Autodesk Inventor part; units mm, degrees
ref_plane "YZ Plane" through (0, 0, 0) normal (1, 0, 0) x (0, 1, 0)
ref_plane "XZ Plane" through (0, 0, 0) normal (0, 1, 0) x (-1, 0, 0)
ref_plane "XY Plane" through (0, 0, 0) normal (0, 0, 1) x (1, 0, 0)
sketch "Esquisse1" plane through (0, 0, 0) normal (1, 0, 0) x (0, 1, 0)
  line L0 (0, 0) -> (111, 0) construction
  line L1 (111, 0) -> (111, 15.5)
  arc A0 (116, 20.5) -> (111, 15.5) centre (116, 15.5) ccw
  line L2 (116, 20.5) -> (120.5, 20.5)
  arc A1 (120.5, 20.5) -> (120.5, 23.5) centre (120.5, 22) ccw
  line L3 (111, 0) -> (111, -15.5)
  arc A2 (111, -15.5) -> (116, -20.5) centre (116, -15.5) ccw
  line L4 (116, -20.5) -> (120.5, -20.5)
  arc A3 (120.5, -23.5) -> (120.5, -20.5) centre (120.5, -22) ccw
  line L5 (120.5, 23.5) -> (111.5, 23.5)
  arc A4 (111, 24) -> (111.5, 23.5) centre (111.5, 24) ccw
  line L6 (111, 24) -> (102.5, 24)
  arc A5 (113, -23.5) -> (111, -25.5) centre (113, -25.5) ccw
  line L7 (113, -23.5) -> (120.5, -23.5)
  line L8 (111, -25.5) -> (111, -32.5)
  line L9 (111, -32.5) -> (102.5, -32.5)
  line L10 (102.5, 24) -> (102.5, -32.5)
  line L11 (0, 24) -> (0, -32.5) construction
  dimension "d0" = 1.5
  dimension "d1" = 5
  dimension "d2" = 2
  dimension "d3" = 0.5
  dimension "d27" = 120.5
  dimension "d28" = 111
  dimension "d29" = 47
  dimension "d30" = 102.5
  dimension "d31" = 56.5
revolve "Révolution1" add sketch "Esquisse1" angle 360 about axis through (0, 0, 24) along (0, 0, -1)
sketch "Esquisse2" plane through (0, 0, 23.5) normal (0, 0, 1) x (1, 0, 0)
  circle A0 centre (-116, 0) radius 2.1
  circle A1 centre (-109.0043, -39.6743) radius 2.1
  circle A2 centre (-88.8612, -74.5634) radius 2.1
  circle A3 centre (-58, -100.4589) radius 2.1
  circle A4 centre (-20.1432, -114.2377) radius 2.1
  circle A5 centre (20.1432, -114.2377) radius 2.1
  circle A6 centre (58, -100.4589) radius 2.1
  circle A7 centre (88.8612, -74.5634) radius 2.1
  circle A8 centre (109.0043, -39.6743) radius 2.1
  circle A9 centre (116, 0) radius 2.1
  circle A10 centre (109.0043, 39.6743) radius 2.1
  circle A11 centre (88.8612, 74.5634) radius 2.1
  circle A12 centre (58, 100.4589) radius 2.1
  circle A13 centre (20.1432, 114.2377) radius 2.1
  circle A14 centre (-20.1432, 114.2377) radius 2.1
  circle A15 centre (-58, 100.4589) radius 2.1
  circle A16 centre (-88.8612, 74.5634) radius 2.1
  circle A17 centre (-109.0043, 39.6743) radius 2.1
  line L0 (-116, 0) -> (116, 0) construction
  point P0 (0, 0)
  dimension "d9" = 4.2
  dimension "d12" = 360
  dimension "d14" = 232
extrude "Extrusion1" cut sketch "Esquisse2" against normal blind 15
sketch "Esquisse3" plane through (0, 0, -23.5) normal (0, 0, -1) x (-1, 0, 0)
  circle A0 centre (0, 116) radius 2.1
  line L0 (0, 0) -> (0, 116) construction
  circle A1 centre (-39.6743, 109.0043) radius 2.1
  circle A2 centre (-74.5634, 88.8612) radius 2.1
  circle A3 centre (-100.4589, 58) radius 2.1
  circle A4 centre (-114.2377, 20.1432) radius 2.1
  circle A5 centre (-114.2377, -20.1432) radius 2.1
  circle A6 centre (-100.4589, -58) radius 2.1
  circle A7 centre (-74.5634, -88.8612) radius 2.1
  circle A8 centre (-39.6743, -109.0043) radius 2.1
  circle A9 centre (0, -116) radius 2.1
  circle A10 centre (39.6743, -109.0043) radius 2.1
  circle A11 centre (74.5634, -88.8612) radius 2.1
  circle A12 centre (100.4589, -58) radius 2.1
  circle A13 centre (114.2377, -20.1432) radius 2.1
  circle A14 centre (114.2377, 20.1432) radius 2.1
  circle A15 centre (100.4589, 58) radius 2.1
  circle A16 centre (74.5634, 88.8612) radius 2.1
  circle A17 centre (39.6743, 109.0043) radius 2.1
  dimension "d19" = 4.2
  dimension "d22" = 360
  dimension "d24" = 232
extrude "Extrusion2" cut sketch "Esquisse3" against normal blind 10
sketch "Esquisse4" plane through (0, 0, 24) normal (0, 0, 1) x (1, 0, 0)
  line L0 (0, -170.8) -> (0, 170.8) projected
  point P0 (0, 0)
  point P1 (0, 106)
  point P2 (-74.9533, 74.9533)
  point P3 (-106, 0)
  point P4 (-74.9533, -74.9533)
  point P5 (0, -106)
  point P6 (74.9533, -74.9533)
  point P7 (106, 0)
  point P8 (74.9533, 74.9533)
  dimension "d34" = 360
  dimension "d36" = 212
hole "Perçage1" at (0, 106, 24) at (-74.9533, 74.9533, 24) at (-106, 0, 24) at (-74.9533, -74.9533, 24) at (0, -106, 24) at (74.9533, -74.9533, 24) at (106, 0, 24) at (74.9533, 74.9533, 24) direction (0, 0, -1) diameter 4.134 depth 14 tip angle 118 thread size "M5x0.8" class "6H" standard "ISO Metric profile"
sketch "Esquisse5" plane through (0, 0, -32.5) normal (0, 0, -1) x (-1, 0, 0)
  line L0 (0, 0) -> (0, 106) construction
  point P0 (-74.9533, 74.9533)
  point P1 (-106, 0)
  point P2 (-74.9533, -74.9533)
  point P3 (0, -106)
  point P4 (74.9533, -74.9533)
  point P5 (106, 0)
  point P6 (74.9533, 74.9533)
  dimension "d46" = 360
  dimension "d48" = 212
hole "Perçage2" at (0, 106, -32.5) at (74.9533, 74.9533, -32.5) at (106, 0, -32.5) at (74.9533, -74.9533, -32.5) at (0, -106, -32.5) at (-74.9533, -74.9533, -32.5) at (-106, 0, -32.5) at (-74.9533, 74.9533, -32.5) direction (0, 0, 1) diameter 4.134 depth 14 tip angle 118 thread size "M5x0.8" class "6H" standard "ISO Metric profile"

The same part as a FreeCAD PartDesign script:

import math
import FreeCAD as App
import Part
import Sketcher
Q = App.Units.Quantity

doc = App.newDocument("Part")
body = doc.addObject("PartDesign::Body", "Body")

sketch1 = doc.addObject("Sketcher::SketchObject", "Sketch")
body.addObject(sketch1)
sketch1.AttachmentSupport = (doc.YZ_Plane, [""])
sketch1.MapMode = "FlatFace"
sketch1.addGeometry([
    Part.LineSegment(App.Vector(111, -15.5, 0), App.Vector(111, 15.5, 0)),
    Part.ArcOfCircle(Part.Circle(App.Vector(116, 15.5, 0), App.Vector(0, 0, 1), 5), math.radians(90), math.radians(180)),
    Part.LineSegment(App.Vector(116, 20.5, 0), App.Vector(120.5, 20.5, 0)),
    Part.ArcOfCircle(Part.Circle(App.Vector(120.5, 22, 0), App.Vector(0, 0, 1), 1.5), math.radians(-90), math.radians(90)),
    Part.LineSegment(App.Vector(120.5, 23.5, 0), App.Vector(111.5, 23.5, 0)),
    Part.ArcOfCircle(Part.Circle(App.Vector(111.5, 24, 0), App.Vector(0, 0, 1), 0.5), math.radians(180), math.radians(270)),
    Part.LineSegment(App.Vector(111, 24, 0), App.Vector(102.5, 24, 0)),
    Part.LineSegment(App.Vector(102.5, 24, 0), App.Vector(102.5, -32.5, 0)),
    Part.LineSegment(App.Vector(102.5, -32.5, 0), App.Vector(111, -32.5, 0)),
    Part.LineSegment(App.Vector(111, -32.5, 0), App.Vector(111, -25.5, 0)),
    Part.ArcOfCircle(Part.Circle(App.Vector(113, -25.5, 0), App.Vector(0, 0, 1), 2), math.radians(90), math.radians(180)),
    Part.LineSegment(App.Vector(113, -23.5, 0), App.Vector(120.5, -23.5, 0)),
    Part.ArcOfCircle(Part.Circle(App.Vector(120.5, -22, 0), App.Vector(0, 0, 1), 1.5), math.radians(-90), math.radians(90)),
    Part.LineSegment(App.Vector(120.5, -20.5, 0), App.Vector(116, -20.5, 0)),
    Part.ArcOfCircle(Part.Circle(App.Vector(116, -15.5, 0), App.Vector(0, 0, 1), 5), math.radians(180), math.radians(270)),
], False)
sketch1.addConstraint([
    Sketcher.Constraint("Tangent", 0, 2, 1, 2),
    Sketcher.Constraint("Tangent", 1, 1, 2, 1),
    Sketcher.Constraint("Tangent", 2, 2, 3, 1),
    Sketcher.Constraint("Tangent", 3, 2, 4, 1),
    Sketcher.Constraint("Tangent", 4, 2, 5, 2),
    Sketcher.Constraint("Coincident", 5, 1, 6, 1),
    Sketcher.Constraint("Coincident", 6, 2, 7, 1),
    Sketcher.Constraint("Coincident", 7, 2, 8, 1),
    Sketcher.Constraint("Coincident", 8, 2, 9, 1),
    Sketcher.Constraint("Tangent", 9, 2, 10, 2),
    Sketcher.Constraint("Tangent", 10, 1, 11, 1),
    Sketcher.Constraint("Tangent", 11, 2, 12, 1),
    Sketcher.Constraint("Tangent", 12, 2, 13, 1),
    Sketcher.Constraint("Tangent", 13, 2, 14, 2),
    Sketcher.Constraint("Tangent", 14, 1, 0, 1),
    Sketcher.Constraint("Vertical", 0),
    Sketcher.Constraint("Horizontal", 2),
    Sketcher.Constraint("Horizontal", 4),
    Sketcher.Constraint("Horizontal", 6),
    Sketcher.Constraint("Vertical", 7),
    Sketcher.Constraint("Horizontal", 8),
    Sketcher.Constraint("Vertical", 9),
    Sketcher.Constraint("Horizontal", 11),
    Sketcher.Constraint("Horizontal", 13),
    Sketcher.Constraint("Equal", 3, 12),
    Sketcher.Constraint("Equal", 1, 14),
    Sketcher.Constraint("Symmetric", 3, 3, 12, 3, -1),
    Sketcher.Constraint("Vertical", 0, 2, 5, 1),
    Sketcher.Constraint("Vertical", 5, 1, 8, 2),
    Sketcher.Constraint("Radius", 1, Q("5 mm")),
    Sketcher.Constraint("Radius", 10, Q("2 mm")),
    Sketcher.Constraint("Radius", 3, Q("1.5 mm")),
    Sketcher.Constraint("Radius", 5, Q("0.5 mm")),
    Sketcher.Constraint("DistanceY", 7, 2, 7, 1, Q("56.5 mm")),
    Sketcher.Constraint("DistanceX", -1, 1, 0, 2, Q("111 mm")),
    Sketcher.Constraint("DistanceX", -1, 1, 3, 3, Q("120.5 mm")),
    Sketcher.Constraint("DistanceX", -1, 1, 6, 2, Q("102.5 mm")),
    Sketcher.Constraint("DistanceY", 4, 2, 5, 1, Q("0.5 mm")),
    Sketcher.Constraint("DistanceY", 0, 1, 0, 2, Q("31 mm")),
])
revolution = doc.addObject("PartDesign::Revolution", "Revolution")
body.addObject(revolution)
revolution.Profile = sketch1
revolution.ReferenceAxis = (sketch1, ["V_Axis"])
revolution.Angle = 360

sketch2 = doc.addObject("Sketcher::SketchObject", "Sketch001")
body.addObject(sketch2)
sketch2.AttachmentSupport = (doc.XY_Plane, [""])
sketch2.MapMode = "FlatFace"
sketch2.AttachmentOffset = App.Placement(App.Vector(0, 0, 23.5), App.Rotation())
sketch2.addGeometry([
    Part.Circle(App.Vector(-116, 0, 0), App.Vector(0, 0, 1), 2.1),
    Part.Circle(App.Vector(-109.0043, -39.6743, 0), App.Vector(0, 0, 1), 2.1),
    Part.Circle(App.Vector(-88.8612, -74.5634, 0), App.Vector(0, 0, 1), 2.1),
    Part.Circle(App.Vector(-58, -100.4589, 0), App.Vector(0, 0, 1), 2.1),
    Part.Circle(App.Vector(-20.1432, -114.2377, 0), App.Vector(0, 0, 1), 2.1),
    Part.Circle(App.Vector(20.1432, -114.2377, 0), App.Vector(0, 0, 1), 2.1),
    Part.Circle(App.Vector(58, -100.4589, 0), App.Vector(0, 0, 1), 2.1),
    Part.Circle(App.Vector(88.8612, -74.5634, 0), App.Vector(0, 0, 1), 2.1),
    Part.Circle(App.Vector(109.0043, -39.6743, 0), App.Vector(0, 0, 1), 2.1),
    Part.Circle(App.Vector(116, 0, 0), App.Vector(0, 0, 1), 2.1),
    Part.Circle(App.Vector(109.0043, 39.6743, 0), App.Vector(0, 0, 1), 2.1),
    Part.Circle(App.Vector(88.8612, 74.5634, 0), App.Vector(0, 0, 1), 2.1),
    Part.Circle(App.Vector(58, 100.4589, 0), App.Vector(0, 0, 1), 2.1),
    Part.Circle(App.Vector(20.1432, 114.2377, 0), App.Vector(0, 0, 1), 2.1),
    Part.Circle(App.Vector(-20.1432, 114.2377, 0), App.Vector(0, 0, 1), 2.1),
    Part.Circle(App.Vector(-58, 100.4589, 0), App.Vector(0, 0, 1), 2.1),
    Part.Circle(App.Vector(-88.8612, 74.5634, 0), App.Vector(0, 0, 1), 2.1),
    Part.Circle(App.Vector(-109.0043, 39.6743, 0), App.Vector(0, 0, 1), 2.1),
], False)
sketch2.addConstraint([
    Sketcher.Constraint("Equal", 0, 1),
    Sketcher.Constraint("Equal", 1, 2),
    Sketcher.Constraint("Equal", 2, 3),
    Sketcher.Constraint("Equal", 3, 4),
    Sketcher.Constraint("Equal", 4, 5),
    Sketcher.Constraint("Equal", 5, 6),
    Sketcher.Constraint("Equal", 6, 7),
    Sketcher.Constraint("Equal", 7, 8),
    Sketcher.Constraint("Equal", 8, 9),
    Sketcher.Constraint("Equal", 9, 10),
    Sketcher.Constraint("Equal", 10, 11),
    Sketcher.Constraint("Equal", 11, 12),
    Sketcher.Constraint("Equal", 12, 13),
    Sketcher.Constraint("Equal", 13, 14),
    Sketcher.Constraint("Equal", 14, 15),
    Sketcher.Constraint("Equal", 15, 16),
    Sketcher.Constraint("Equal", 16, 17),
    Sketcher.Constraint("Symmetric", 0, 3, 9, 3, -1, 1),
    Sketcher.Constraint("Symmetric", 1, 3, 10, 3, -1, 1),
    Sketcher.Constraint("Symmetric", 2, 3, 11, 3, -1, 1),
    Sketcher.Constraint("Symmetric", 3, 3, 12, 3, -1, 1),
    Sketcher.Constraint("Symmetric", 4, 3, 13, 3, -1, 1),
    Sketcher.Constraint("Symmetric", 5, 3, 14, 3, -1, 1),
    Sketcher.Constraint("Symmetric", 6, 3, 15, 3, -1, 1),
    Sketcher.Constraint("Symmetric", 7, 3, 16, 3, -1, 1),
    Sketcher.Constraint("Symmetric", 8, 3, 17, 3, -1, 1),
    Sketcher.Constraint("Symmetric", 4, 3, 5, 3, -2),
    Sketcher.Constraint("Symmetric", 3, 3, 6, 3, -2),
    Sketcher.Constraint("Symmetric", 2, 3, 7, 3, -2),
    Sketcher.Constraint("Symmetric", 1, 3, 8, 3, -2),
    Sketcher.Constraint("PointOnObject", 0, 3, -1),
    Sketcher.Constraint("Diameter", 0, Q("4.2 mm")),
    Sketcher.Constraint("DistanceX", 0, 3, -1, 1, Q("116 mm")),
    Sketcher.Constraint("DistanceX", 3, 3, -1, 1, Q("58 mm")),
    Sketcher.Constraint("DistanceY", 3, 3, -1, 1, Q("100.459 mm")),
    Sketcher.Constraint("DistanceX", 1, 3, 2, 3, Q("20.143 mm")),
    Sketcher.Constraint("DistanceY", 2, 3, 1, 3, Q("34.889 mm")),
    Sketcher.Constraint("DistanceX", 2, 3, 4, 3, Q("68.718 mm")),
    Sketcher.Constraint("DistanceY", 5, 3, 10, 3, Q("153.912 mm")),
    Sketcher.Constraint("DistanceX", 1, 3, -1, 1, Q("109.0043 mm")),
    Sketcher.Constraint("DistanceY", 1, 3, -1, 1, Q("39.6743 mm")),
])
pocket1 = doc.addObject("PartDesign::Pocket", "Pocket")
body.addObject(pocket1)
pocket1.Profile = sketch2
pocket1.Length = 15

sketch3 = doc.addObject("Sketcher::SketchObject", "Sketch002")
body.addObject(sketch3)
sketch3.AttachmentSupport = (doc.XY_Plane, [""])
sketch3.MapMode = "FlatFace"
sketch3.AttachmentOffset = App.Placement(App.Vector(0, 0, -23.5), App.Rotation())
sketch3.addGeometry([
    Part.Circle(App.Vector(0, 116, 0), App.Vector(0, 0, 1), 2.1),
    Part.Circle(App.Vector(39.6743, 109.0043, 0), App.Vector(0, 0, 1), 2.1),
    Part.Circle(App.Vector(74.5634, 88.8612, 0), App.Vector(0, 0, 1), 2.1),
    Part.Circle(App.Vector(100.4589, 58, 0), App.Vector(0, 0, 1), 2.1),
    Part.Circle(App.Vector(114.2377, 20.1432, 0), App.Vector(0, 0, 1), 2.1),
    Part.Circle(App.Vector(114.2377, -20.1432, 0), App.Vector(0, 0, 1), 2.1),
    Part.Circle(App.Vector(100.4589, -58, 0), App.Vector(0, 0, 1), 2.1),
    Part.Circle(App.Vector(74.5634, -88.8612, 0), App.Vector(0, 0, 1), 2.1),
    Part.Circle(App.Vector(39.6743, -109.0043, 0), App.Vector(0, 0, 1), 2.1),
    Part.Circle(App.Vector(0, -116, 0), App.Vector(0, 0, 1), 2.1),
    Part.Circle(App.Vector(-39.6743, -109.0043, 0), App.Vector(0, 0, 1), 2.1),
    Part.Circle(App.Vector(-74.5634, -88.8612, 0), App.Vector(0, 0, 1), 2.1),
    Part.Circle(App.Vector(-100.4589, -58, 0), App.Vector(0, 0, 1), 2.1),
    Part.Circle(App.Vector(-114.2377, -20.1432, 0), App.Vector(0, 0, 1), 2.1),
    Part.Circle(App.Vector(-114.2377, 20.1432, 0), App.Vector(0, 0, 1), 2.1),
    Part.Circle(App.Vector(-100.4589, 58, 0), App.Vector(0, 0, 1), 2.1),
    Part.Circle(App.Vector(-74.5634, 88.8612, 0), App.Vector(0, 0, 1), 2.1),
    Part.Circle(App.Vector(-39.6743, 109.0043, 0), App.Vector(0, 0, 1), 2.1),
], False)
sketch3.addConstraint([
    Sketcher.Constraint("Equal", 0, 1),
    Sketcher.Constraint("Equal", 1, 2),
    Sketcher.Constraint("Equal", 2, 3),
    Sketcher.Constraint("Equal", 3, 4),
    Sketcher.Constraint("Equal", 4, 5),
    Sketcher.Constraint("Equal", 5, 6),
    Sketcher.Constraint("Equal", 6, 7),
    Sketcher.Constraint("Equal", 7, 8),
    Sketcher.Constraint("Equal", 8, 9),
    Sketcher.Constraint("Equal", 9, 10),
    Sketcher.Constraint("Equal", 10, 11),
    Sketcher.Constraint("Equal", 11, 12),
    Sketcher.Constraint("Equal", 12, 13),
    Sketcher.Constraint("Equal", 13, 14),
    Sketcher.Constraint("Equal", 14, 15),
    Sketcher.Constraint("Equal", 15, 16),
    Sketcher.Constraint("Equal", 16, 17),
    Sketcher.Constraint("Symmetric", 0, 3, 9, 3, -1, 1),
    Sketcher.Constraint("Symmetric", 1, 3, 10, 3, -1, 1),
    Sketcher.Constraint("Symmetric", 2, 3, 11, 3, -1, 1),
    Sketcher.Constraint("Symmetric", 3, 3, 12, 3, -1, 1),
    Sketcher.Constraint("Symmetric", 4, 3, 13, 3, -1, 1),
    Sketcher.Constraint("Symmetric", 5, 3, 14, 3, -1, 1),
    Sketcher.Constraint("Symmetric", 6, 3, 15, 3, -1, 1),
    Sketcher.Constraint("Symmetric", 7, 3, 16, 3, -1, 1),
    Sketcher.Constraint("Symmetric", 8, 3, 17, 3, -1, 1),
    Sketcher.Constraint("Symmetric", 8, 3, 10, 3, -2),
    Sketcher.Constraint("Symmetric", 7, 3, 11, 3, -2),
    Sketcher.Constraint("Symmetric", 6, 3, 12, 3, -2),
    Sketcher.Constraint("Symmetric", 5, 3, 13, 3, -2),
    Sketcher.Constraint("PointOnObject", 0, 3, -2),
    Sketcher.Constraint("Diameter", 0, Q("4.2 mm")),
    Sketcher.Constraint("DistanceY", -1, 1, 0, 3, Q("116 mm")),
    Sketcher.Constraint("DistanceY", -1, 1, 3, 3, Q("58 mm")),
    Sketcher.Constraint("DistanceX", -1, 1, 3, 3, Q("100.459 mm")),
    Sketcher.Constraint("DistanceX", 1, 3, 2, 3, Q("34.889 mm")),
    Sketcher.Constraint("DistanceY", 2, 3, 1, 3, Q("20.143 mm")),
    Sketcher.Constraint("DistanceY", 4, 3, 2, 3, Q("68.718 mm")),
    Sketcher.Constraint("DistanceX", 10, 3, 5, 3, Q("153.912 mm")),
    Sketcher.Constraint("DistanceX", -1, 1, 1, 3, Q("39.6743 mm")),
    Sketcher.Constraint("DistanceY", -1, 1, 1, 3, Q("109.0043 mm")),
])
pocket2 = doc.addObject("PartDesign::Pocket", "Pocket001")
body.addObject(pocket2)
pocket2.Profile = sketch3
pocket2.Length = 10
pocket2.Reversed = True

sketch4 = doc.addObject("Sketcher::SketchObject", "Sketch003")
body.addObject(sketch4)
sketch4.AttachmentSupport = (doc.XY_Plane, [""])
sketch4.MapMode = "FlatFace"
sketch4.AttachmentOffset = App.Placement(App.Vector(0, 0, 24), App.Rotation())
sketch4.addGeometry([
    Part.Circle(App.Vector(0, 106, 0), App.Vector(0, 0, 1), 2.067),
    Part.Circle(App.Vector(-74.9533, 74.9533, 0), App.Vector(0, 0, 1), 2.067),
    Part.Circle(App.Vector(-106, 0, 0), App.Vector(0, 0, 1), 2.067),
    Part.Circle(App.Vector(-74.9533, -74.9533, 0), App.Vector(0, 0, 1), 2.067),
    Part.Circle(App.Vector(0, -106, 0), App.Vector(0, 0, 1), 2.067),
    Part.Circle(App.Vector(74.9533, -74.9533, 0), App.Vector(0, 0, 1), 2.067),
    Part.Circle(App.Vector(106, 0, 0), App.Vector(0, 0, 1), 2.067),
    Part.Circle(App.Vector(74.9533, 74.9533, 0), App.Vector(0, 0, 1), 2.067),
], False)
sketch4.addConstraint([
    Sketcher.Constraint("Equal", 0, 1),
    Sketcher.Constraint("Equal", 1, 2),
    Sketcher.Constraint("Equal", 2, 3),
    Sketcher.Constraint("Equal", 3, 4),
    Sketcher.Constraint("Equal", 4, 5),
    Sketcher.Constraint("Equal", 5, 6),
    Sketcher.Constraint("Equal", 6, 7),
    Sketcher.Constraint("Symmetric", 0, 3, 4, 3, -1, 1),
    Sketcher.Constraint("Symmetric", 1, 3, 5, 3, -1, 1),
    Sketcher.Constraint("Symmetric", 2, 3, 6, 3, -1, 1),
    Sketcher.Constraint("Symmetric", 3, 3, 7, 3, -1, 1),
    Sketcher.Constraint("Symmetric", 3, 3, 5, 3, -2),
    Sketcher.Constraint("PointOnObject", 0, 3, -2),
    Sketcher.Constraint("PointOnObject", 2, 3, -1),
    Sketcher.Constraint("Diameter", 0, Q("4.134 mm")),
    Sketcher.Constraint("DistanceY", -1, 1, 0, 3, Q("106 mm")),
    Sketcher.Constraint("DistanceX", 2, 3, -1, 1, Q("106 mm")),
    Sketcher.Constraint("DistanceX", 1, 3, -1, 1, Q("74.9533 mm")),
    Sketcher.Constraint("DistanceY", -1, 1, 1, 3, Q("74.9533 mm")),
])
doc.recompute()
hole = doc.addObject("PartDesign::Hole", "Hole")
body.addObject(hole)
hole.Profile = sketch4
hole.ThreadType = "None"
hole.Diameter = 4.134
hole.DepthType = "Dimension"
hole.Depth = 14
hole.DrillPoint = "Angled"
hole.DrillPointAngle = 118

sketch5 = doc.addObject("Sketcher::SketchObject", "Sketch004")
body.addObject(sketch5)
sketch5.AttachmentSupport = (doc.XY_Plane, [""])
sketch5.MapMode = "FlatFace"
sketch5.AttachmentOffset = App.Placement(App.Vector(0, 0, -32.5), App.Rotation())
sketch5.addGeometry([
    Part.Circle(App.Vector(0, 106, 0), App.Vector(0, 0, 1), 2.067),
    Part.Circle(App.Vector(74.9533, 74.9533, 0), App.Vector(0, 0, 1), 2.067),
    Part.Circle(App.Vector(106, 0, 0), App.Vector(0, 0, 1), 2.067),
    Part.Circle(App.Vector(74.9533, -74.9533, 0), App.Vector(0, 0, 1), 2.067),
    Part.Circle(App.Vector(0, -106, 0), App.Vector(0, 0, 1), 2.067),
    Part.Circle(App.Vector(-74.9533, -74.9533, 0), App.Vector(0, 0, 1), 2.067),
    Part.Circle(App.Vector(-106, 0, 0), App.Vector(0, 0, 1), 2.067),
    Part.Circle(App.Vector(-74.9533, 74.9533, 0), App.Vector(0, 0, 1), 2.067),
], False)
sketch5.addConstraint([
    Sketcher.Constraint("Equal", 0, 1),
    Sketcher.Constraint("Equal", 1, 2),
    Sketcher.Constraint("Equal", 2, 3),
    Sketcher.Constraint("Equal", 3, 4),
    Sketcher.Constraint("Equal", 4, 5),
    Sketcher.Constraint("Equal", 5, 6),
    Sketcher.Constraint("Equal", 6, 7),
    Sketcher.Constraint("Symmetric", 0, 3, 4, 3, -1, 1),
    Sketcher.Constraint("Symmetric", 1, 3, 5, 3, -1, 1),
    Sketcher.Constraint("Symmetric", 2, 3, 6, 3, -1, 1),
    Sketcher.Constraint("Symmetric", 3, 3, 7, 3, -1, 1),
    Sketcher.Constraint("Symmetric", 3, 3, 5, 3, -2),
    Sketcher.Constraint("PointOnObject", 0, 3, -2),
    Sketcher.Constraint("PointOnObject", 2, 3, -1),
    Sketcher.Constraint("Diameter", 0, Q("4.134 mm")),
    Sketcher.Constraint("DistanceY", -1, 1, 0, 3, Q("106 mm")),
    Sketcher.Constraint("DistanceX", -1, 1, 2, 3, Q("106 mm")),
    Sketcher.Constraint("DistanceX", -1, 1, 1, 3, Q("74.9533 mm")),
    Sketcher.Constraint("DistanceY", -1, 1, 1, 3, Q("74.9533 mm")),
])
doc.recompute()
hole2 = doc.addObject("PartDesign::Hole", "Hole001")
body.addObject(hole2)
hole2.Profile = sketch5
hole2.ThreadType = "None"
hole2.Diameter = 4.134
hole2.DepthType = "Dimension"
hole2.Depth = 14
hole2.DrillPoint = "Angled"
hole2.DrillPointAngle = 118
hole2.Reversed = True

doc.recompute()
